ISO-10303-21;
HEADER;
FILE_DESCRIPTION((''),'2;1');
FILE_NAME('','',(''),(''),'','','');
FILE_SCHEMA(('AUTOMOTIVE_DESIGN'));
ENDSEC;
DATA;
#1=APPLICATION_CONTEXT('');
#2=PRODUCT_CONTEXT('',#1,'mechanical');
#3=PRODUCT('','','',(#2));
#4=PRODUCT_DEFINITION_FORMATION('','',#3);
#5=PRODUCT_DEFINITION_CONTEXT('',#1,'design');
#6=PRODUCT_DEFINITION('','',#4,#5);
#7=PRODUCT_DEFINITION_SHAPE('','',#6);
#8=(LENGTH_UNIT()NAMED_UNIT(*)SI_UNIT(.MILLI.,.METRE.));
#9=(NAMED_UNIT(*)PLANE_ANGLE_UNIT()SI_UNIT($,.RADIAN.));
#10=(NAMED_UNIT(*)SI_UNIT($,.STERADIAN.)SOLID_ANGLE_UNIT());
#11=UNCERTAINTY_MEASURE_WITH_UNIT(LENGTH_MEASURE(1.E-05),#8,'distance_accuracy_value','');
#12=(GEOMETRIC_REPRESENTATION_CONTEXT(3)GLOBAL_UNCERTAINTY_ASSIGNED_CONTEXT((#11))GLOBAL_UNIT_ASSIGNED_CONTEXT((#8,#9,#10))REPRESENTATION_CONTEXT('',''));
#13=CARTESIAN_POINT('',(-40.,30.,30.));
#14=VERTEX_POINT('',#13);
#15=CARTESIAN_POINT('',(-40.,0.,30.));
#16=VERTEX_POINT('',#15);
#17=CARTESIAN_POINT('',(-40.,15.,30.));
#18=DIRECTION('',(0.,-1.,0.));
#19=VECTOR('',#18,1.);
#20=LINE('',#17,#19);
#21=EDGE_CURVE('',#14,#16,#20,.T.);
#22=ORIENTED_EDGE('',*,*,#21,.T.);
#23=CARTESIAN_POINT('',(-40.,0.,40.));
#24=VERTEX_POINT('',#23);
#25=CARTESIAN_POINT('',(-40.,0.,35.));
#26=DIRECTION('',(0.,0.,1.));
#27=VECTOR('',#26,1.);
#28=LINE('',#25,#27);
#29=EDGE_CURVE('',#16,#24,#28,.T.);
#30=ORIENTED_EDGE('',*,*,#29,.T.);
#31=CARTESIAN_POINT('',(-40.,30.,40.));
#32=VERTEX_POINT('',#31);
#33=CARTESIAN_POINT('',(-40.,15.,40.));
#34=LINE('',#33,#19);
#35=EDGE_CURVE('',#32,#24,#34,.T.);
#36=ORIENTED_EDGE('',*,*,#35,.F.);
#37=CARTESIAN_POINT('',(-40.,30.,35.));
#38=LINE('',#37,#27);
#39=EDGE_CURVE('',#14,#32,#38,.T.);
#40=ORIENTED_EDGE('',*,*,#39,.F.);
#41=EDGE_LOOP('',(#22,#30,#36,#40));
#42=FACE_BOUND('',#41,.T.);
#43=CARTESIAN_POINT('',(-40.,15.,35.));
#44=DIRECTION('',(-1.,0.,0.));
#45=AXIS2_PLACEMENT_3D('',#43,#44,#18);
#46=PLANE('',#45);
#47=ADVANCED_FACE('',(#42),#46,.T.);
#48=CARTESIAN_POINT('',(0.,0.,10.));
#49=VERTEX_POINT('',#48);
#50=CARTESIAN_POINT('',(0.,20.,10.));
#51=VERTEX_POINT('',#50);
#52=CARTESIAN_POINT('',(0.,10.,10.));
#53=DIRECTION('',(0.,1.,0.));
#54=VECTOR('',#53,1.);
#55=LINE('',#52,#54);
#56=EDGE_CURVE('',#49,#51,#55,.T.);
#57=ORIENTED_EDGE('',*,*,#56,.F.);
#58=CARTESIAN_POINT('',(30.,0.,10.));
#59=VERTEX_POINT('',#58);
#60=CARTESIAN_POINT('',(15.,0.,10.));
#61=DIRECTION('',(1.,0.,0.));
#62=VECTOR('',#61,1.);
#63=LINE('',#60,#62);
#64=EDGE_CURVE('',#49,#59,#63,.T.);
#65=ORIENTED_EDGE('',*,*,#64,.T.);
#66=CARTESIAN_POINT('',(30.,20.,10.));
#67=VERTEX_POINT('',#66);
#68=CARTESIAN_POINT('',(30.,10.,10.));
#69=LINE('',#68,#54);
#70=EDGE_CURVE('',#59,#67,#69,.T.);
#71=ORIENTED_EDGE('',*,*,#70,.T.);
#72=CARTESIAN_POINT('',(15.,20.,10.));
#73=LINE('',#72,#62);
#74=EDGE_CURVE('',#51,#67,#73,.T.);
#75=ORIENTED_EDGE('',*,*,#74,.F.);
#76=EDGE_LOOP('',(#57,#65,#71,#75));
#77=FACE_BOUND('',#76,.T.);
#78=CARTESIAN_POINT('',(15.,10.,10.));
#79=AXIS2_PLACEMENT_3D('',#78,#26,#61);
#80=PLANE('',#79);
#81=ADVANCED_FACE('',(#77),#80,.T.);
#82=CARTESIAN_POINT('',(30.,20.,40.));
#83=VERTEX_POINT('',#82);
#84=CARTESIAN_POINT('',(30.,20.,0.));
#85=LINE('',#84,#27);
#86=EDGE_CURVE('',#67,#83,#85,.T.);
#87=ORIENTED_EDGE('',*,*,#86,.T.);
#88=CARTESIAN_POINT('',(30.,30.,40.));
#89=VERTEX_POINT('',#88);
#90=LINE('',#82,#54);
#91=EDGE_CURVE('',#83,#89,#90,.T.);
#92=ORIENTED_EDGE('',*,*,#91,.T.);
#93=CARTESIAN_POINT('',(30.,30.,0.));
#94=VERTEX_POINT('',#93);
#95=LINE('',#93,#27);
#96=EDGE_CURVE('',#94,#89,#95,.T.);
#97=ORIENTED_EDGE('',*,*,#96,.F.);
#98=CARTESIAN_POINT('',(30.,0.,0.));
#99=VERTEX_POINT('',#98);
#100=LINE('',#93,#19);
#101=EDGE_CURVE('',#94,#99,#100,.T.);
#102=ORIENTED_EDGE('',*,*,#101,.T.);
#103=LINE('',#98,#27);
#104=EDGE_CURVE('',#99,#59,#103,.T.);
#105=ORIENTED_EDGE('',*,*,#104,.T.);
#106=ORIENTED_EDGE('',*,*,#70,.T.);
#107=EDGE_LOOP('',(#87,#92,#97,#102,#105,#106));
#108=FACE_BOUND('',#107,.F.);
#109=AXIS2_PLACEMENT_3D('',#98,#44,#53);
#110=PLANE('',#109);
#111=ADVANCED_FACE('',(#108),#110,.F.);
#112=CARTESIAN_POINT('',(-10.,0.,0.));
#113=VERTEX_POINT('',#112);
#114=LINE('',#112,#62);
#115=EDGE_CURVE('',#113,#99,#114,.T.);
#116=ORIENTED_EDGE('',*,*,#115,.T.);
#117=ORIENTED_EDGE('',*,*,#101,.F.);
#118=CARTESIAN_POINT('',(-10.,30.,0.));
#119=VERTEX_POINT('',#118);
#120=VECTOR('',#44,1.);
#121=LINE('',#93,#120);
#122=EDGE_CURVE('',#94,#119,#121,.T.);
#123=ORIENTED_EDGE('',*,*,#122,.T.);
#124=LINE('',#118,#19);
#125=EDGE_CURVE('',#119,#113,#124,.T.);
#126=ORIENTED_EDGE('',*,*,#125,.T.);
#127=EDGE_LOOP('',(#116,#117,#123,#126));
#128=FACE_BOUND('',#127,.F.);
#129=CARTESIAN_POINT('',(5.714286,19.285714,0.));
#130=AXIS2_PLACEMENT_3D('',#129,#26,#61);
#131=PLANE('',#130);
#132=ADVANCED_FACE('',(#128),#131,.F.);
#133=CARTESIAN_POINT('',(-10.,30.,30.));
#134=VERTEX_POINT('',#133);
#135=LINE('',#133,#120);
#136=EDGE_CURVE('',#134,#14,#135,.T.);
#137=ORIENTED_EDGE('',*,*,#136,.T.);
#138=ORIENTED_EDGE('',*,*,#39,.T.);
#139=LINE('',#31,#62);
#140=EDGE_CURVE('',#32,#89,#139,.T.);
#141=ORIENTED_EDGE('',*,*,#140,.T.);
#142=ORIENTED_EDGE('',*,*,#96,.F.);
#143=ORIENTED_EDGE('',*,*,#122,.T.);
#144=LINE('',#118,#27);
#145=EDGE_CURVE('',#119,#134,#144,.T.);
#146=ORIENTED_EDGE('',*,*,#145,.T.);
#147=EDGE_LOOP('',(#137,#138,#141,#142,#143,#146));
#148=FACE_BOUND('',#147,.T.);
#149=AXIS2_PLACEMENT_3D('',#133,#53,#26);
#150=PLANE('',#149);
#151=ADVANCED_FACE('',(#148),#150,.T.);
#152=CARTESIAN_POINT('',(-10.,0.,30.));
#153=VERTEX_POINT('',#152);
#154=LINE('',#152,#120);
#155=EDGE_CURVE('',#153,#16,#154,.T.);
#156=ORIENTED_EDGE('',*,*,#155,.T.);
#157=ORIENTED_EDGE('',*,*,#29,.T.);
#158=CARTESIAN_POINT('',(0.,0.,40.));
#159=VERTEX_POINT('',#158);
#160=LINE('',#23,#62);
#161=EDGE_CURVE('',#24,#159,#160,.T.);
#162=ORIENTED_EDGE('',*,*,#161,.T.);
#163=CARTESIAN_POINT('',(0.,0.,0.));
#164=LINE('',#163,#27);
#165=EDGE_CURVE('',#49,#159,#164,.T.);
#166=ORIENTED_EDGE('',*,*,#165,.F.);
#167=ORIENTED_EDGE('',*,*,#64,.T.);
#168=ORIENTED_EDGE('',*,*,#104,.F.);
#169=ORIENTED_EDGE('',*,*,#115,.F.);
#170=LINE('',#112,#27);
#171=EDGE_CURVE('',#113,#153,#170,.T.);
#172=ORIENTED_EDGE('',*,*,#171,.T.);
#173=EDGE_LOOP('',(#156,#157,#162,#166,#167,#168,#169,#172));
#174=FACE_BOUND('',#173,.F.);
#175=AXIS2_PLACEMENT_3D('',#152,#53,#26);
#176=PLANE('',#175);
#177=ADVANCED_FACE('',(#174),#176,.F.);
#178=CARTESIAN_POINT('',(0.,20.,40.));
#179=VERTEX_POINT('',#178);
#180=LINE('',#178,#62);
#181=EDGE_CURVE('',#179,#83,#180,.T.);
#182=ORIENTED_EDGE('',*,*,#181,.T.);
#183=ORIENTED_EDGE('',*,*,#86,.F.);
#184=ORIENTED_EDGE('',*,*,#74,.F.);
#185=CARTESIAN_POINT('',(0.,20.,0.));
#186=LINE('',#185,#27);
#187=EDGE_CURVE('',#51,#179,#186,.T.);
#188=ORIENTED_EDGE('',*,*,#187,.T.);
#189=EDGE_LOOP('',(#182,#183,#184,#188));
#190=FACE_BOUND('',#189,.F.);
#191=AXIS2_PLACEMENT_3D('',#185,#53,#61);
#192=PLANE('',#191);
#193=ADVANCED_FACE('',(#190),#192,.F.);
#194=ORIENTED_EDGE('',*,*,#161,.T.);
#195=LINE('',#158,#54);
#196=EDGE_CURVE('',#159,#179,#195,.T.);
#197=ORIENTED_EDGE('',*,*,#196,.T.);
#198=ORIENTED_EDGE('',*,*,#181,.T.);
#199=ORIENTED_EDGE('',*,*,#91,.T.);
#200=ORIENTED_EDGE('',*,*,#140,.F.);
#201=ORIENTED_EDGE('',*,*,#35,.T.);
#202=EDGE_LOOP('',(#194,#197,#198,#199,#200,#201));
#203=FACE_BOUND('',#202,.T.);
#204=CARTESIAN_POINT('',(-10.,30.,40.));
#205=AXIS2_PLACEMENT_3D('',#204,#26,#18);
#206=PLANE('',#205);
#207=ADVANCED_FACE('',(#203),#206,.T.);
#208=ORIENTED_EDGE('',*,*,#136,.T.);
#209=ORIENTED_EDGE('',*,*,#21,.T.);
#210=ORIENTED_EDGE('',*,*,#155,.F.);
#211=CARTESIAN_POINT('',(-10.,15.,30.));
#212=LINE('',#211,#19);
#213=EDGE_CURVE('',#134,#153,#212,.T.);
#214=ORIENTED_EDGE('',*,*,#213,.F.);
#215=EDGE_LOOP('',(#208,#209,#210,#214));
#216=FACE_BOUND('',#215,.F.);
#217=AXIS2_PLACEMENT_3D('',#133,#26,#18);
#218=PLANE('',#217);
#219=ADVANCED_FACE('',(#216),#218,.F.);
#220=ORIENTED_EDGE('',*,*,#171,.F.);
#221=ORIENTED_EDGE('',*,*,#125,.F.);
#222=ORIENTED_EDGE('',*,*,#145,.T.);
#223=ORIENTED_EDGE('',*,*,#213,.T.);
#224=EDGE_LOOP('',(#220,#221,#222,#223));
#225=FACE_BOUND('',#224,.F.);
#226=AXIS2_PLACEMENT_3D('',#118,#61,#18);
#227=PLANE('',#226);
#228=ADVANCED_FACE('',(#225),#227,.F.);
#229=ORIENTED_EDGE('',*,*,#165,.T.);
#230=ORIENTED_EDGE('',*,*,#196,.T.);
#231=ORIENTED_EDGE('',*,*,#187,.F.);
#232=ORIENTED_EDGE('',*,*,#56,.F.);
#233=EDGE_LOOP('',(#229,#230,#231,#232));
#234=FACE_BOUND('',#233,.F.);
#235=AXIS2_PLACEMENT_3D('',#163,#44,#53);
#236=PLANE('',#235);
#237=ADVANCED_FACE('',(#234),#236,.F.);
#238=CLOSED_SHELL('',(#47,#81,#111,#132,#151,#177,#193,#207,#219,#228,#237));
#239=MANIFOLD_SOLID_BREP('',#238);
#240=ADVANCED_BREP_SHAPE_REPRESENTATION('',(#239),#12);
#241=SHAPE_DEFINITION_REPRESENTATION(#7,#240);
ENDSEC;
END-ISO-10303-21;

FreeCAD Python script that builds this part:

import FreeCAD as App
import Part
import Sketcher
from FreeCAD import Vector


def add_polygon(sketch, points):
    """Adds a closed chain of lines whose ends are joined by coincident constraints."""
    first, n = sketch.GeometryCount, len(points)
    for a, b in zip(points, points[1:] + points[:1]):
        sketch.addGeometry(Part.LineSegment(App.Vector(*a, 0), App.Vector(*b, 0)), False)
    for i in range(n):
        sketch.addConstraint(Sketcher.Constraint("Coincident", first + i, 2, first + (i + 1) % n, 1))

doc = App.newDocument("Part")
body = doc.addObject("PartDesign::Body", "Body")

sketch1 = body.newObject("Sketcher::SketchObject", "Sketch")
sketch1.AttachmentSupport = (doc.getObject("XY_Plane"), [""])
sketch1.MapMode = "FlatFace"
add_polygon(sketch1, [(0, 20), (0, 0), (30, 0), (30, 20)])
sketch1.addConstraint([
    Sketcher.Constraint("Vertical", 0),
    Sketcher.Constraint("Horizontal", 1),
    Sketcher.Constraint("Vertical", 2),
    Sketcher.Constraint("Horizontal", 3),
    Sketcher.Constraint("Coincident", 0, 2, -1, 1),
    Sketcher.Constraint("DistanceX", 1, 1, 1, 2, 30.0),
    Sketcher.Constraint("DistanceY", 0, 2, 0, 1, 20.0),
])
pad1 = body.newObject("PartDesign::Pad", "Pad")
pad1.Profile = sketch1
pad1.Length = 10

sketch2 = body.newObject("Sketcher::SketchObject", "Sketch001")
sketch2.AttachmentSupport = (doc.getObject("XY_Plane"), [""])
sketch2.MapMode = "FlatFace"
add_polygon(sketch2, [(-10, 0), (0, 0), (0, 20), (30, 20), (30, 30), (-10, 30)])
sketch2.addConstraint([
    Sketcher.Constraint("Horizontal", 0),
    Sketcher.Constraint("Vertical", 1),
    Sketcher.Constraint("Horizontal", 2),
    Sketcher.Constraint("Vertical", 3),
    Sketcher.Constraint("Horizontal", 4),
    Sketcher.Constraint("Vertical", 5),
    Sketcher.Constraint("Coincident", 0, 2, -1, 1),
    Sketcher.Constraint("Equal", 0, 3),
    Sketcher.Constraint("Equal", 2, 5),
    Sketcher.Constraint("DistanceX", 0, 1, 0, 2, 10.0),
    Sketcher.Constraint("DistanceX", 2, 1, 2, 2, 30.0),
])
pad2 = body.newObject("PartDesign::Pad", "Pad001")
pad2.Profile = sketch2
pad2.Length = 40

sketch3 = body.newObject("Sketcher::SketchObject", "Sketch002")
sketch3.AttachmentSupport = (doc.getObject("YZ_Plane"), [""])
sketch3.MapMode = "FlatFace"
sketch3.AttachmentOffset = App.Placement(Vector(0, 0, -10), App.Rotation())
add_polygon(sketch3, [(30, 40), (30, 30), (0, 30), (0, 40)])
sketch3.addConstraint([
    Sketcher.Constraint("Vertical", 0),
    Sketcher.Constraint("Horizontal", 1),
    Sketcher.Constraint("Vertical", 2),
    Sketcher.Constraint("Horizontal", 3),
    Sketcher.Constraint("PointOnObject", 1, 2, -2),
    Sketcher.Constraint("DistanceX", 1, 2, 1, 1, 30.0),
    Sketcher.Constraint("DistanceY", 0, 2, 0, 1, 10.0),
    Sketcher.Constraint("DistanceY", -1, 1, 0, 2, 30.0),
])
pad3 = body.newObject("PartDesign::Pad", "Pad002")
pad3.Profile = sketch3
pad3.Length = 30
pad3.Reversed = True

doc.recompute()
